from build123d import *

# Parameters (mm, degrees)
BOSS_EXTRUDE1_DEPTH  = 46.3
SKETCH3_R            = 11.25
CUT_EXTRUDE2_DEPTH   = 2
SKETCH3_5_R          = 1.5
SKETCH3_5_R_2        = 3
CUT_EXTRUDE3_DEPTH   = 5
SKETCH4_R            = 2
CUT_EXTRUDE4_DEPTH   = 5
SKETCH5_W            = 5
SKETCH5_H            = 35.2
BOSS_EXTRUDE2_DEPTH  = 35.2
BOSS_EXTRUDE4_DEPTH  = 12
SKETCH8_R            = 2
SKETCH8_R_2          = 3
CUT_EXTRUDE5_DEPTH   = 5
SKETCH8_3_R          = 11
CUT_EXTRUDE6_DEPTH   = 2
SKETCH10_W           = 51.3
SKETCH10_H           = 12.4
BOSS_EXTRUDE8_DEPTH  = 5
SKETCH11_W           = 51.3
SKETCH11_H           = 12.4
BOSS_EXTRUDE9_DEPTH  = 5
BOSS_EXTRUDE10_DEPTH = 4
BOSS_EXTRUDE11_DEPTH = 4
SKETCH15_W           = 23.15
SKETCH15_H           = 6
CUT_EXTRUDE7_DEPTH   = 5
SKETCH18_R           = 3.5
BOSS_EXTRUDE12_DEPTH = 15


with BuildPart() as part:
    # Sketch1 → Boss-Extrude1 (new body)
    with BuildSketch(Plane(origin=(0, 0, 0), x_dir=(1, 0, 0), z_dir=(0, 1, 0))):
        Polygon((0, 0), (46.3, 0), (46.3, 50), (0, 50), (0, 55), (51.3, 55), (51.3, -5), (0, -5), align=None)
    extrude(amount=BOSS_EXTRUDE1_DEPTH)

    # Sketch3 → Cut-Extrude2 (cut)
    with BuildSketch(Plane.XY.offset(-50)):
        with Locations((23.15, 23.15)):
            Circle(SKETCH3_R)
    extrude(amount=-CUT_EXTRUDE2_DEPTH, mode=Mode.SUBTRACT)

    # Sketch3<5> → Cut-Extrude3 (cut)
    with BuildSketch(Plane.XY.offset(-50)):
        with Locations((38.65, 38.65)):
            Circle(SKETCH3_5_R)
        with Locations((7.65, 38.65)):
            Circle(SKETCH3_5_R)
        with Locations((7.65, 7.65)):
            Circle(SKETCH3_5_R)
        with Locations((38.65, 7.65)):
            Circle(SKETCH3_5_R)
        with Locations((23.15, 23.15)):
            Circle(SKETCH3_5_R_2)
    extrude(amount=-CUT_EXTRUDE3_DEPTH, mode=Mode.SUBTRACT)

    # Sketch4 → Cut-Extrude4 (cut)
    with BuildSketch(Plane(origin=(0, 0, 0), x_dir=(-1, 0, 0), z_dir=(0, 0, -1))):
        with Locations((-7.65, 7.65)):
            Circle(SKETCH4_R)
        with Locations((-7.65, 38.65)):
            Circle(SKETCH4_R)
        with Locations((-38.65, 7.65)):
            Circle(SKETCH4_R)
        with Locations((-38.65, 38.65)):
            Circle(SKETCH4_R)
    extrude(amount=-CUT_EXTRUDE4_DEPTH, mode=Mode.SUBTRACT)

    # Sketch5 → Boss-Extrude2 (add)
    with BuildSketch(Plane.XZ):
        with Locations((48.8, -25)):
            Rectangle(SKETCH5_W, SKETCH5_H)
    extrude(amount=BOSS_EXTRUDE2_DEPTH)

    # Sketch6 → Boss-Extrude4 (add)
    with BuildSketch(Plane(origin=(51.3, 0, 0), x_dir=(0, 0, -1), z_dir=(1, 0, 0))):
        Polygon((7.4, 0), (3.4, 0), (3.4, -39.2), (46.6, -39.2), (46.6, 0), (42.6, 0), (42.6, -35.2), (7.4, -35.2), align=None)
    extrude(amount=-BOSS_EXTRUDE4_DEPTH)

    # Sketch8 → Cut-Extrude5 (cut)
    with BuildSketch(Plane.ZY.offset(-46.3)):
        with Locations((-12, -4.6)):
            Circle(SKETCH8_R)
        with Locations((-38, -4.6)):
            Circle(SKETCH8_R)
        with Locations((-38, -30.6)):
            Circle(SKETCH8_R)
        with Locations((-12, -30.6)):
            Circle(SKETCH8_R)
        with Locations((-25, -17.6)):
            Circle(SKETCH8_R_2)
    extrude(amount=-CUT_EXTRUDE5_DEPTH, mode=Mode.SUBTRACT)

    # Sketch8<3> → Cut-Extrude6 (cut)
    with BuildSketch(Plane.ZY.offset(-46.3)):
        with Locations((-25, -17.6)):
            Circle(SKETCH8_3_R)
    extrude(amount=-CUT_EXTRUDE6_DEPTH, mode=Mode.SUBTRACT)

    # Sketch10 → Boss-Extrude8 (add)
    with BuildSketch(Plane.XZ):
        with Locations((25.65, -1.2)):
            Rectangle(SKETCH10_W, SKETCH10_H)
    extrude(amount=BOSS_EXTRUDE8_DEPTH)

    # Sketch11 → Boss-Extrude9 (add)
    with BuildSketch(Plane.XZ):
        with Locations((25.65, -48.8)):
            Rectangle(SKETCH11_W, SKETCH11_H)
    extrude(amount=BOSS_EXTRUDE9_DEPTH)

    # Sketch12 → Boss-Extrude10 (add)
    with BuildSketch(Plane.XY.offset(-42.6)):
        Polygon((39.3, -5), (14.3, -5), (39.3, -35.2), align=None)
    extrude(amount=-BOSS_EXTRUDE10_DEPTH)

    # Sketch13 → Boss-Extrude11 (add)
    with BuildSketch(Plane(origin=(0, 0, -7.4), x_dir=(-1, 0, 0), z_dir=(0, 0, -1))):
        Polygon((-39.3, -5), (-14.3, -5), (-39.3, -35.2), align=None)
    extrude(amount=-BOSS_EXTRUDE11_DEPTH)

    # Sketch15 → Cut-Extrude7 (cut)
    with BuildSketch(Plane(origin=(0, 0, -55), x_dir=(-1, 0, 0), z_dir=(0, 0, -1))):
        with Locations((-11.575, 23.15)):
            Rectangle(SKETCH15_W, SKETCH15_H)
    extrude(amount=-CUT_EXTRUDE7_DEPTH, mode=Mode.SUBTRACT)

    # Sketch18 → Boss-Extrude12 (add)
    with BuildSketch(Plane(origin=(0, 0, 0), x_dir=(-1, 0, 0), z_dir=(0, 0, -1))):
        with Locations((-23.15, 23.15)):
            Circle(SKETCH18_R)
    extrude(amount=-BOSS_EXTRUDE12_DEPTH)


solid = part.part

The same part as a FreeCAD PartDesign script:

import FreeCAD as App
import Part
import Sketcher


def add_polygon(sketch, points):
    """Adds a closed chain of lines whose ends are joined by coincident constraints."""
    first, n = sketch.GeometryCount, len(points)
    for a, b in zip(points, points[1:] + points[:1]):
        sketch.addGeometry(Part.LineSegment(App.Vector(*a, 0), App.Vector(*b, 0)), False)
    for i in range(n):
        sketch.addConstraint(Sketcher.Constraint("Coincident", first + i, 2, first + (i + 1) % n, 1))

doc = App.newDocument("Part")
body = doc.addObject("PartDesign::Body", "Body")

# Sketch on XZ plane
sketch1 = body.newObject("Sketcher::SketchObject", "Sketch")
sketch1.AttachmentSupport = (doc.getObject("XZ_Plane"), [""])
sketch1.MapMode = "FlatFace"
add_polygon(sketch1, [(46, 0), (0, 0), (0, 5), (51, 5), (51, -55), (0, -55), (0, -50), (46, -50)])  # lines 0-7
sketch1.addConstraint(Sketcher.Constraint("Horizontal", 0))
sketch1.addConstraint(Sketcher.Constraint("Vertical", 1))
sketch1.addConstraint(Sketcher.Constraint("Horizontal", 2))
sketch1.addConstraint(Sketcher.Constraint("Vertical", 3))
sketch1.addConstraint(Sketcher.Constraint("Horizontal", 4))
sketch1.addConstraint(Sketcher.Constraint("Vertical", 5))
sketch1.addConstraint(Sketcher.Constraint("Horizontal", 6))
sketch1.addConstraint(Sketcher.Constraint("Vertical", 7))
sketch1.addConstraint(Sketcher.Constraint("Coincident", 0, 2, -1, 1))
sketch1.addConstraint(Sketcher.Constraint("PointOnObject", 4, 2, -2))
sketch1.addConstraint(Sketcher.Constraint("Equal", 1, 5))
sketch1.addConstraint(Sketcher.Constraint("DistanceY", 1, 1, 1, 2, 5.0))
sketch1.addConstraint(Sketcher.Constraint("DistanceY", 3, 2, 3, 1, 60.0))
sketch1.addConstraint(Sketcher.Constraint("DistanceX", 0, 2, 0, 1, 46.3))
sketch1.addConstraint(Sketcher.Constraint("DistanceX", 2, 1, 2, 2, 51.3))
pad1 = body.newObject("PartDesign::Pad", "Pad")
pad1.Profile = sketch1
pad1.Length = 46.3
pad1.Reversed = True

# Sketch on XY plane
sketch2 = body.newObject("Sketcher::SketchObject", "Sketch001")
sketch2.AttachmentSupport = (doc.getObject("XY_Plane"), [""])
sketch2.MapMode = "FlatFace"
sketch2.AttachmentOffset = App.Placement(App.Vector(0, 0, -50), App.Rotation())
sketch2.addGeometry(Part.Circle(App.Vector(23, 23, 0), App.Vector(0, 0, 1), 11), False)
sketch2.addConstraint(Sketcher.Constraint("Diameter", 0, 22.5))
sketch2.addConstraint(Sketcher.Constraint("DistanceX", -1, 1, 0, 3, 23.15))
sketch2.addConstraint(Sketcher.Constraint("DistanceY", -1, 1, 0, 3, 23.15))
pocket1 = body.newObject("PartDesign::Pocket", "Pocket")
pocket1.Profile = sketch2
pocket1.Length = 2

# Sketch on XY plane
sketch3 = body.newObject("Sketcher::SketchObject", "Sketch002")
sketch3.AttachmentSupport = (doc.getObject("XY_Plane"), [""])
sketch3.MapMode = "FlatFace"
sketch3.AttachmentOffset = App.Placement(App.Vector(0, 0, -50), App.Rotation())
sketch3.addGeometry(Part.Circle(App.Vector(38.6, 38.6, 0), App.Vector(0, 0, 1), 1.5), False)
sketch3.addGeometry(Part.Circle(App.Vector(7.7, 38.6, 0), App.Vector(0, 0, 1), 1.5), False)
sketch3.addGeometry(Part.Circle(App.Vector(7.7, 7.7, 0), App.Vector(0, 0, 1), 1.5), False)
sketch3.addGeometry(Part.Circle(App.Vector(38.6, 7.7, 0), App.Vector(0, 0, 1), 1.5), False)
sketch3.addGeometry(Part.Circle(App.Vector(23.1, 23.1, 0), App.Vector(0, 0, 1), 3), False)
sketch3.addConstraint(Sketcher.Constraint("Equal", 0, 1))
sketch3.addConstraint(Sketcher.Constraint("Equal", 1, 2))
sketch3.addConstraint(Sketcher.Constraint("Equal", 2, 3))
sketch3.addConstraint(Sketcher.Constraint("Horizontal", 0, 3, 1, 3))
sketch3.addConstraint(Sketcher.Constraint("Horizontal", 2, 3, 3, 3))
sketch3.addConstraint(Sketcher.Constraint("Vertical", 1, 3, 2, 3))
sketch3.addConstraint(Sketcher.Constraint("Vertical", 0, 3, 3, 3))
sketch3.addConstraint(Sketcher.Constraint("Diameter", 0, 3.0))
sketch3.addConstraint(Sketcher.Constraint("Diameter", 4, 6.0))
sketch3.addConstraint(Sketcher.Constraint("DistanceX", 1, 3, 0, 3, 31.0))
sketch3.addConstraint(Sketcher.Constraint("DistanceY", 2, 3, 1, 3, 31.0))
sketch3.addConstraint(Sketcher.Constraint("DistanceX", 2, 3, 4, 3, 15.5))
sketch3.addConstraint(Sketcher.Constraint("DistanceY", 2, 3, 4, 3, 15.5))
sketch3.addConstraint(Sketcher.Constraint("DistanceX", -1, 1, 0, 3, 38.65))
sketch3.addConstraint(Sketcher.Constraint("DistanceY", -1, 1, 0, 3, 38.65))
pocket2 = body.newObject("PartDesign::Pocket", "Pocket001")
pocket2.Profile = sketch3
pocket2.Length = 5

# Sketch on XY plane
sketch4 = body.newObject("Sketcher::SketchObject", "Sketch003")
sketch4.AttachmentSupport = (doc.getObject("XY_Plane"), [""])
sketch4.MapMode = "FlatFace"
sketch4.addGeometry(Part.Circle(App.Vector(7.7, 7.7, 0), App.Vector(0, 0, 1), 2), False)
sketch4.addGeometry(Part.Circle(App.Vector(7.7, 38.6, 0), App.Vector(0, 0, 1), 2), False)
sketch4.addGeometry(Part.Circle(App.Vector(38.6, 7.7, 0), App.Vector(0, 0, 1), 2), False)
sketch4.addGeometry(Part.Circle(App.Vector(38.6, 38.6, 0), App.Vector(0, 0, 1), 2), False)
sketch4.addConstraint(Sketcher.Constraint("Equal", 0, 1))
sketch4.addConstraint(Sketcher.Constraint("Equal", 1, 2))
sketch4.addConstraint(Sketcher.Constraint("Equal", 2, 3))
sketch4.addConstraint(Sketcher.Constraint("Horizontal", 0, 3, 2, 3))
sketch4.addConstraint(Sketcher.Constraint("Horizontal", 1, 3, 3, 3))
sketch4.addConstraint(Sketcher.Constraint("Vertical", 0, 3, 1, 3))
sketch4.addConstraint(Sketcher.Constraint("Vertical", 2, 3, 3, 3))
sketch4.addConstraint(Sketcher.Constraint("Diameter", 0, 4.0))
sketch4.addConstraint(Sketcher.Constraint("DistanceY", 0, 3, 1, 3, 31.0))
sketch4.addConstraint(Sketcher.Constraint("DistanceX", 0, 3, 2, 3, 31.0))
sketch4.addConstraint(Sketcher.Constraint("DistanceX", -1, 1, 0, 3, 7.65))
sketch4.addConstraint(Sketcher.Constraint("DistanceY", -1, 1, 0, 3, 7.65))
pocket3 = body.newObject("PartDesign::Pocket", "Pocket002")
pocket3.Profile = sketch4
pocket3.Length = 5
pocket3.Reversed = True

# Sketch on XZ plane
sketch5 = body.newObject("Sketcher::SketchObject", "Sketch004")
sketch5.AttachmentSupport = (doc.getObject("XZ_Plane"), [""])
sketch5.MapMode = "FlatFace"
add_polygon(sketch5, [(46, -7), (46, -43), (51, -43), (51, -7)])  # lines 0-3
sketch5.addConstraint(Sketcher.Constraint("Vertical", 0))
sketch5.addConstraint(Sketcher.Constraint("Horizontal", 1))
sketch5.addConstraint(Sketcher.Constraint("Vertical", 2))
sketch5.addConstraint(Sketcher.Constraint("Horizontal", 3))
sketch5.addConstraint(Sketcher.Constraint("DistanceX", 1, 1, 1, 2, 5.0))
sketch5.addConstraint(Sketcher.Constraint("DistanceY", 0, 2, 0, 1, 35.2))
sketch5.addConstraint(Sketcher.Constraint("DistanceX", -1, 1, 0, 2, 46.3))
sketch5.addConstraint(Sketcher.Constraint("DistanceY", 0, 2, -1, 1, 42.6))
pad2 = body.newObject("PartDesign::Pad", "Pad001")
pad2.Profile = sketch5
pad2.Length = 35.2

# Sketch on YZ plane
sketch6 = body.newObject("Sketcher::SketchObject", "Sketch005")
sketch6.AttachmentSupport = (doc.getObject("YZ_Plane"), [""])
sketch6.MapMode = "FlatFace"
sketch6.AttachmentOffset = App.Placement(App.Vector(0, 0, 51.3), App.Rotation())
add_polygon(sketch6, [(0, -7.4), (0, -3.4), (-39.2, -3.4), (-39.2, -46.6), (0, -46.6), (0, -42.6), (-35.2, -42.6), (-35.2, -7.4)])  # lines 0-7
sketch6.addConstraint(Sketcher.Constraint("Vertical", 0))
sketch6.addConstraint(Sketcher.Constraint("Horizontal", 1))
sketch6.addConstraint(Sketcher.Constraint("Vertical", 2))
sketch6.addConstraint(Sketcher.Constraint("Horizontal", 3))
sketch6.addConstraint(Sketcher.Constraint("Vertical", 4))
sketch6.addConstraint(Sketcher.Constraint("Horizontal", 5))
sketch6.addConstraint(Sketcher.Constraint("Vertical", 6))
sketch6.addConstraint(Sketcher.Constraint("Horizontal", 7))
sketch6.addConstraint(Sketcher.Constraint("PointOnObject", 0, 2, -2))
sketch6.addConstraint(Sketcher.Constraint("PointOnObject", 3, 2, -2))
sketch6.addConstraint(Sketcher.Constraint("Equal", 0, 4))
sketch6.addConstraint(Sketcher.Constraint("Equal", 7, 6))
sketch6.addConstraint(Sketcher.Constraint("DistanceY", 0, 1, 0, 2, 4.0))
sketch6.addConstraint(Sketcher.Constraint("DistanceX", 1, 2, 1, 1, 39.2))
sketch6.addConstraint(Sketcher.Constraint("DistanceX", 5, 2, 5, 1, 35.2))
sketch6.addConstraint(Sketcher.Constraint("DistanceY", 0, 2, -1, 1, 3.4))
pad3 = body.newObject("PartDesign::Pad", "Pad002")
pad3.Profile = sketch6
pad3.Length = 12
pad3.Reversed = True

# Sketch on YZ plane
sketch7 = body.newObject("Sketcher::SketchObject", "Sketch006")
sketch7.AttachmentSupport = (doc.getObject("YZ_Plane"), [""])
sketch7.MapMode = "FlatFace"
sketch7.AttachmentOffset = App.Placement(App.Vector(0, 0, 46.3), App.Rotation())
sketch7.addGeometry(Part.Circle(App.Vector(-4.6, -12, 0), App.Vector(0, 0, 1), 2), False)
sketch7.addGeometry(Part.Circle(App.Vector(-4.6, -38, 0), App.Vector(0, 0, 1), 2), False)
sketch7.addGeometry(Part.Circle(App.Vector(-30.6, -38, 0), App.Vector(0, 0, 1), 2), False)
sketch7.addGeometry(Part.Circle(App.Vector(-30.6, -12, 0), App.Vector(0, 0, 1), 2), False)
sketch7.addGeometry(Part.Circle(App.Vector(-17.6, -25, 0), App.Vector(0, 0, 1), 3), False)
sketch7.addConstraint(Sketcher.Constraint("Equal", 0, 1))
sketch7.addConstraint(Sketcher.Constraint("Equal", 1, 2))
sketch7.addConstraint(Sketcher.Constraint("Equal", 2, 3))
sketch7.addConstraint(Sketcher.Constraint("Horizontal", 1, 3, 2, 3))
sketch7.addConstraint(Sketcher.Constraint("Horizontal", 0, 3, 3, 3))
sketch7.addConstraint(Sketcher.Constraint("Vertical", 0, 3, 1, 3))
sketch7.addConstraint(Sketcher.Constraint("Vertical", 2, 3, 3, 3))
sketch7.addConstraint(Sketcher.Constraint("Diameter", 0, 4.0))
sketch7.addConstraint(Sketcher.Constraint("Diameter", 4, 6.0))
sketch7.addConstraint(Sketcher.Constraint("DistanceY", 0, 3, -1, 1, 12.0))
sketch7.addConstraint(Sketcher.Constraint("DistanceY", 1, 3, -1, 1, 38.0))
sketch7.addConstraint(Sketcher.Constraint("DistanceY", 4, 3, -1, 1, 25.0))
sketch7.addConstraint(Sketcher.Constraint("DistanceX", 2, 3, 1, 3, 26.0))
sketch7.addConstraint(Sketcher.Constraint("DistanceX", 2, 3, 4, 3, 13.0))
sketch7.addConstraint(Sketcher.Constraint("DistanceX", 0, 3, -1, 1, 4.6))
pocket4 = body.newObject("PartDesign::Pocket", "Pocket003")
pocket4.Profile = sketch7
pocket4.Length = 5
pocket4.Reversed = True

# Sketch on YZ plane
sketch8 = body.newObject("Sketcher::SketchObject", "Sketch007")
sketch8.AttachmentSupport = (doc.getObject("YZ_Plane"), [""])
sketch8.MapMode = "FlatFace"
sketch8.AttachmentOffset = App.Placement(App.Vector(0, 0, 46.3), App.Rotation())
sketch8.addGeometry(Part.Circle(App.Vector(-18, -25, 0), App.Vector(0, 0, 1), 11), False)
sketch8.addConstraint(Sketcher.Constraint("Diameter", 0, 22.0))
sketch8.addConstraint(Sketcher.Constraint("DistanceY", 0, 3, -1, 1, 25.0))
sketch8.addConstraint(Sketcher.Constraint("DistanceX", 0, 3, -1, 1, 17.6))
pocket5 = body.newObject("PartDesign::Pocket", "Pocket004")
pocket5.Profile = sketch8
pocket5.Length = 2
pocket5.Reversed = True

# Sketch on XZ plane
sketch9 = body.newObject("Sketcher::SketchObject", "Sketch008")
sketch9.AttachmentSupport = (doc.getObject("XZ_Plane"), [""])
sketch9.MapMode = "FlatFace"
add_polygon(sketch9, [(0, 5), (0, -7), (51, -7), (51, 5)])  # lines 0-3
sketch9.addConstraint(Sketcher.Constraint("Vertical", 0))
sketch9.addConstraint(Sketcher.Constraint("Horizontal", 1))
sketch9.addConstraint(Sketcher.Constraint("Vertical", 2))
sketch9.addConstraint(Sketcher.Constraint("Horizontal", 3))
sketch9.addConstraint(Sketcher.Constraint("PointOnObject", 0, 2, -2))
sketch9.addConstraint(Sketcher.Constraint("DistanceX", 1, 1, 1, 2, 51.3))
sketch9.addConstraint(Sketcher.Constraint("DistanceY", 0, 2, 0, 1, 12.4))
sketch9.addConstraint(Sketcher.Constraint("DistanceY", -1, 1, 2, 2, 5.0))
pad4 = body.newObject("PartDesign::Pad", "Pad003")
pad4.Profile = sketch9
pad4.Length = 5

# Sketch on XZ plane
sketch10 = body.newObject("Sketcher::SketchObject", "Sketch009")
sketch10.AttachmentSupport = (doc.getObject("XZ_Plane"), [""])
sketch10.MapMode = "FlatFace"
add_polygon(sketch10, [(0, -43), (0, -55), (51, -55), (51, -43)])  # lines 0-3
sketch10.addConstraint(Sketcher.Constraint("Vertical", 0))
sketch10.addConstraint(Sketcher.Constraint("Horizontal", 1))
sketch10.addConstraint(Sketcher.Constraint("Vertical", 2))
sketch10.addConstraint(Sketcher.Constraint("Horizontal", 3))
sketch10.addConstraint(Sketcher.Constraint("PointOnObject", 0, 2, -2))
sketch10.addConstraint(Sketcher.Constraint("DistanceX", 1, 1, 1, 2, 51.3))
sketch10.addConstraint(Sketcher.Constraint("DistanceY", 0, 2, 0, 1, 12.4))
sketch10.addConstraint(Sketcher.Constraint("DistanceY", 0, 2, -1, 1, 55.0))
pad5 = body.newObject("PartDesign::Pad", "Pad004")
pad5.Profile = sketch10
pad5.Length = 5

# Sketch on XY plane
sketch11 = body.newObject("Sketcher::SketchObject", "Sketch010")
sketch11.AttachmentSupport = (doc.getObject("XY_Plane"), [""])
sketch11.MapMode = "FlatFace"
sketch11.AttachmentOffset = App.Placement(App.Vector(0, 0, -42.6), App.Rotation())
add_polygon(sketch11, [(39, -5), (14, -5), (39, -35)])  # lines 0-2
sketch11.addConstraint(Sketcher.Constraint("Horizontal", 0))
sketch11.addConstraint(Sketcher.Constraint("Vertical", 2))
sketch11.addConstraint(Sketcher.Constraint("DistanceX", 0, 2, 0, 1, 25.0))
sketch11.addConstraint(Sketcher.Constraint("DistanceY", 2, 1, 2, 2, 30.2))
sketch11.addConstraint(Sketcher.Constraint("DistanceY", 0, 2, -1, 1, 5.0))
sketch11.addConstraint(Sketcher.Constraint("DistanceX", -1, 1, 0, 2, 14.3))
pad6 = body.newObject("PartDesign::Pad", "Pad005")
pad6.Profile = sketch11
pad6.Length = 4
pad6.Reversed = True

# Sketch on XY plane
sketch12 = body.newObject("Sketcher::SketchObject", "Sketch011")
sketch12.AttachmentSupport = (doc.getObject("XY_Plane"), [""])
sketch12.MapMode = "FlatFace"
sketch12.AttachmentOffset = App.Placement(App.Vector(0, 0, -7.4), App.Rotation())
add_polygon(sketch12, [(14, -5), (39, -5), (39, -35)])  # lines 0-2
sketch12.addConstraint(Sketcher.Constraint("Horizontal", 0))
sketch12.addConstraint(Sketcher.Constraint("Vertical", 1))
sketch12.addConstraint(Sketcher.Constraint("DistanceX", 0, 1, 0, 2, 25.0))
sketch12.addConstraint(Sketcher.Constraint("DistanceY", 1, 2, 1, 1, 30.2))
sketch12.addConstraint(Sketcher.Constraint("DistanceY", 0, 2, -1, 1, 5.0))
sketch12.addConstraint(Sketcher.Constraint("DistanceX", -1, 1, 0, 2, 39.3))
pad7 = body.newObject("PartDesign::Pad", "Pad006")
pad7.Profile = sketch12
pad7.Length = 4

# Sketch on XY plane
sketch13 = body.newObject("Sketcher::SketchObject", "Sketch012")
sketch13.AttachmentSupport = (doc.getObject("XY_Plane"), [""])
sketch13.MapMode = "FlatFace"
sketch13.AttachmentOffset = App.Placement(App.Vector(0, 0, -55), App.Rotation())
add_polygon(sketch13, [(23, 26), (23, 20), (0, 20), (0, 26)])  # lines 0-3
sketch13.addConstraint(Sketcher.Constraint("Vertical", 0))
sketch13.addConstraint(Sketcher.Constraint("Horizontal", 1))
sketch13.addConstraint(Sketcher.Constraint("Vertical", 2))
sketch13.addConstraint(Sketcher.Constraint("Horizontal", 3))
sketch13.addConstraint(Sketcher.Constraint("PointOnObject", 1, 2, -2))
sketch13.addConstraint(Sketcher.Constraint("DistanceY", 0, 2, 0, 1, 6.0))
sketch13.addConstraint(Sketcher.Constraint("DistanceX", 1, 2, 1, 1, 23.15))
sketch13.addConstraint(Sketcher.Constraint("DistanceY", -1, 1, 0, 2, 20.15))
pocket6 = body.newObject("PartDesign::Pocket", "Pocket005")
pocket6.Profile = sketch13
pocket6.Length = 5
pocket6.Reversed = True

# Sketch on XY plane
sketch14 = body.newObject("Sketcher::SketchObject", "Sketch013")
sketch14.AttachmentSupport = (doc.getObject("XY_Plane"), [""])
sketch14.MapMode = "FlatFace"
sketch14.addGeometry(Part.Circle(App.Vector(23.1, 23.1, 0), App.Vector(0, 0, 1), 3.5), False)
sketch14.addConstraint(Sketcher.Constraint("Diameter", 0, 7.0))
sketch14.addConstraint(Sketcher.Constraint("DistanceX", -1, 1, 0, 3, 23.15))
sketch14.addConstraint(Sketcher.Constraint("DistanceY", -1, 1, 0, 3, 23.15))
pad8 = body.newObject("PartDesign::Pad", "Pad007")
pad8.Profile = sketch14
pad8.Length = 15

doc.recompute()
